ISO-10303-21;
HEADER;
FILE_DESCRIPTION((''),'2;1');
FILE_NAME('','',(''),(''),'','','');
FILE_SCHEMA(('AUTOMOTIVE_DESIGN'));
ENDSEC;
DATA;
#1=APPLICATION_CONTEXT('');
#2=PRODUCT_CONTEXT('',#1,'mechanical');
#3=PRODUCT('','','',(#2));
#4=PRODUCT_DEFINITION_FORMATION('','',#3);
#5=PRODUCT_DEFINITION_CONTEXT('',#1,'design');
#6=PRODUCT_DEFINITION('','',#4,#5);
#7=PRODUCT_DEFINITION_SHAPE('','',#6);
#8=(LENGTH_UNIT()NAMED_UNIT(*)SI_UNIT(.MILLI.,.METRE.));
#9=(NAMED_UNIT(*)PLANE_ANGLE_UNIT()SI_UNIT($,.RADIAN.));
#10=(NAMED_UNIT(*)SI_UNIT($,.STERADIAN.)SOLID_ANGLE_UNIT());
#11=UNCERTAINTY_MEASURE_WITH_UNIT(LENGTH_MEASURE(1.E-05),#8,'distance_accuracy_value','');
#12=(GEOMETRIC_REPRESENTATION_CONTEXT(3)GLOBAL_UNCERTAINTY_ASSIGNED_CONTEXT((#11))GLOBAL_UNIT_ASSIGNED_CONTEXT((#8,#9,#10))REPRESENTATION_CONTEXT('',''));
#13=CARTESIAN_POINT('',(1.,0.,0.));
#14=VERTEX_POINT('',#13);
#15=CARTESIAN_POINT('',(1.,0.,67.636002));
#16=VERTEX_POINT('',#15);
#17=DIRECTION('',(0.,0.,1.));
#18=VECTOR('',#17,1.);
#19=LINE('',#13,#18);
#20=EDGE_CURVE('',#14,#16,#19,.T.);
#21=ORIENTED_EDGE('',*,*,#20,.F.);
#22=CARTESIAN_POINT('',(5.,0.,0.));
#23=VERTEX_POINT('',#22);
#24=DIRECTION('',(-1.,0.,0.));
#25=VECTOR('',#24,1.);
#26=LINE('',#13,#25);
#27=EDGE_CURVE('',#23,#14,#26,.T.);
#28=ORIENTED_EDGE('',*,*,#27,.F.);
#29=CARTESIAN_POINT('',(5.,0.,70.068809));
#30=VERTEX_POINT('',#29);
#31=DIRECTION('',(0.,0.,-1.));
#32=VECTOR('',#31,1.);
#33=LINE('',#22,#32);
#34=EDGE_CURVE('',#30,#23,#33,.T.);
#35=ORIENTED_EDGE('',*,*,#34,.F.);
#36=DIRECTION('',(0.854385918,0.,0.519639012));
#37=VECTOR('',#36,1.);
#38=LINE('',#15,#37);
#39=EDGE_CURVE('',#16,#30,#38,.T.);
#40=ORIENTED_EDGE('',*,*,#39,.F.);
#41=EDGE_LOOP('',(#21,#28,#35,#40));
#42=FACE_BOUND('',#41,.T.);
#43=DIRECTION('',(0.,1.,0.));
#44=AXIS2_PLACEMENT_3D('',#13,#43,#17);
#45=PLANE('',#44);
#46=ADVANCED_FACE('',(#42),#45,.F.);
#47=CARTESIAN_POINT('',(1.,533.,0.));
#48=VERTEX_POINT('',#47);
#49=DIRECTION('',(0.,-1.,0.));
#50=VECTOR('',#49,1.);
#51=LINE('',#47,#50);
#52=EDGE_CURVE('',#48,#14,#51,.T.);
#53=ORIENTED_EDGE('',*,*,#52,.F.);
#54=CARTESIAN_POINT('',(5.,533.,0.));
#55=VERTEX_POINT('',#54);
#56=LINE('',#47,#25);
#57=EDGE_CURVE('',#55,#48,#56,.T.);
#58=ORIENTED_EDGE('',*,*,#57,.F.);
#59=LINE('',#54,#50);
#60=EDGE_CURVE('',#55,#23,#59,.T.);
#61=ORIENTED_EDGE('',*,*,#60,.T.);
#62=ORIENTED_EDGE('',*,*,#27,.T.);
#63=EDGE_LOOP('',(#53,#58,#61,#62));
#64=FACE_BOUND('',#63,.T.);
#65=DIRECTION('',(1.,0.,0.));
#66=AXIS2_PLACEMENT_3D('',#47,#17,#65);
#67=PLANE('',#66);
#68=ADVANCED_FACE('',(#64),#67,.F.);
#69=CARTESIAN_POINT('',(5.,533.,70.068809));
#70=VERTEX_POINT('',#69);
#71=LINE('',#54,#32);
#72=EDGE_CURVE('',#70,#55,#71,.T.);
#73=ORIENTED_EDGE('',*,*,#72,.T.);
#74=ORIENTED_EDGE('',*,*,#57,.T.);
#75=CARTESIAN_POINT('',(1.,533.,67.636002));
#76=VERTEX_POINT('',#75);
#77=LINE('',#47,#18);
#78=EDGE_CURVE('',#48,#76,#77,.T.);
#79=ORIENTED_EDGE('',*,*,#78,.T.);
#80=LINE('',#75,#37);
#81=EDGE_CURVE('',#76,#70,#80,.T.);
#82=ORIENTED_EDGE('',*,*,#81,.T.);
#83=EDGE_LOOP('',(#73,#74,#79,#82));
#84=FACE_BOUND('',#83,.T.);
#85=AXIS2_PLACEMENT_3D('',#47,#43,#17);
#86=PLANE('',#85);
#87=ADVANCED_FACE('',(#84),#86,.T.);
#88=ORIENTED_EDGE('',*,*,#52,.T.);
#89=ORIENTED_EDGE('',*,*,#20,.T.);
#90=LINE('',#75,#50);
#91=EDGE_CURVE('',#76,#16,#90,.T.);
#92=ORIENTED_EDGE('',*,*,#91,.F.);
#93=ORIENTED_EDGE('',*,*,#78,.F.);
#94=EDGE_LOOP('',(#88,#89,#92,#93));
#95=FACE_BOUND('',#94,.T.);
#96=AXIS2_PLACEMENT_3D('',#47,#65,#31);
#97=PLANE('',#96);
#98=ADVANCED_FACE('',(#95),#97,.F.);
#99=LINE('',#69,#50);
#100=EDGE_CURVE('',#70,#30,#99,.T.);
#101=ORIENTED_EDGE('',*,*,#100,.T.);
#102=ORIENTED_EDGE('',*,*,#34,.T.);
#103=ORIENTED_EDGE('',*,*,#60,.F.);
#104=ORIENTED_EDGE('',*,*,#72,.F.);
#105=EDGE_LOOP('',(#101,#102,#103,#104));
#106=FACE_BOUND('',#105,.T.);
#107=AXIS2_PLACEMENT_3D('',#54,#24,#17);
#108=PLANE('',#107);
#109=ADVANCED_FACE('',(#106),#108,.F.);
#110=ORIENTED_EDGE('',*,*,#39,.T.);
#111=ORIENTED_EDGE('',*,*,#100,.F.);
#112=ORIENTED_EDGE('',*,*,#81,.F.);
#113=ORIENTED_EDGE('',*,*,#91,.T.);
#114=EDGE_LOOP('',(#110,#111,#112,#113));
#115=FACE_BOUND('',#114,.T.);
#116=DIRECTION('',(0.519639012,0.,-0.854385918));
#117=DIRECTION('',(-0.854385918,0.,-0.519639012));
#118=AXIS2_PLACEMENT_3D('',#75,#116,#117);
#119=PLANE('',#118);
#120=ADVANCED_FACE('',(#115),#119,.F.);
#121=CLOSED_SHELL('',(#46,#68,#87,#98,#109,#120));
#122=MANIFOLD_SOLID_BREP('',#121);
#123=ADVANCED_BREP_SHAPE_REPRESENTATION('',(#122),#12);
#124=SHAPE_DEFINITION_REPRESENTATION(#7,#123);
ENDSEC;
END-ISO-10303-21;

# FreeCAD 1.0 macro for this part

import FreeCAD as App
import Part
import Sketcher
Q = App.Units.Quantity

doc = App.newDocument("Part")
params = doc.addObject("Spreadsheet::Sheet", "Params")
for row, (alias, value) in enumerate([
    ("sketch1_width", "4 mm"),
    ("pad1_length", "533 mm"),
], start=1):
    params.set(f"A{row}", alias)
    params.set(f"B{row}", "=" + value)
    params.setAlias(f"B{row}", alias)

body = doc.addObject("PartDesign::Body", "Body")

sketch1 = body.newObject("Sketcher::SketchObject", "Sketch")
sketch1.AttachmentSupport = (doc.getObject("XZ_Plane"), [""])
sketch1.MapMode = "FlatFace"
sketch1.addGeometry([
    Part.LineSegment(App.Vector(5, 0, 0), App.Vector(1, 0, 0)),
    Part.LineSegment(App.Vector(1, 0, 0), App.Vector(1, 67.636002, 0)),
    Part.LineSegment(App.Vector(1, 67.636002, 0), App.Vector(5, 70.068809, 0)),
    Part.LineSegment(App.Vector(5, 70.068809, 0), App.Vector(5, 0, 0)),
], False)
sketch1.addConstraint([
    Sketcher.Constraint("Coincident", 0, 2, 1, 1),
    Sketcher.Constraint("Coincident", 1, 2, 2, 1),
    Sketcher.Constraint("Coincident", 2, 2, 3, 1),
    Sketcher.Constraint("Coincident", 3, 2, 0, 1),
    Sketcher.Constraint("Horizontal", 0),
    Sketcher.Constraint("Vertical", 1),
    Sketcher.Constraint("Vertical", 3),
    Sketcher.Constraint("PointOnObject", 0, 2, -1),
    Sketcher.Constraint("DistanceX", 0, 2, 0, 1, Q("4 mm")),
    Sketcher.Constraint("DistanceX", -1, 1, 0, 2, Q("1 mm")),
    Sketcher.Constraint("DistanceY", 1, 1, 1, 2, Q("67.636002 mm")),
    Sketcher.Constraint("DistanceY", 3, 2, 3, 1, Q("70.068809 mm")),
])
sketch1.setExpression("Constraints[8]", "Params.sketch1_width")
pad1 = body.newObject("PartDesign::Pad", "Pad")
pad1.Profile = sketch1
pad1.setExpression("Length", "Params.pad1_length")
pad1.Reversed = True

doc.recompute()
